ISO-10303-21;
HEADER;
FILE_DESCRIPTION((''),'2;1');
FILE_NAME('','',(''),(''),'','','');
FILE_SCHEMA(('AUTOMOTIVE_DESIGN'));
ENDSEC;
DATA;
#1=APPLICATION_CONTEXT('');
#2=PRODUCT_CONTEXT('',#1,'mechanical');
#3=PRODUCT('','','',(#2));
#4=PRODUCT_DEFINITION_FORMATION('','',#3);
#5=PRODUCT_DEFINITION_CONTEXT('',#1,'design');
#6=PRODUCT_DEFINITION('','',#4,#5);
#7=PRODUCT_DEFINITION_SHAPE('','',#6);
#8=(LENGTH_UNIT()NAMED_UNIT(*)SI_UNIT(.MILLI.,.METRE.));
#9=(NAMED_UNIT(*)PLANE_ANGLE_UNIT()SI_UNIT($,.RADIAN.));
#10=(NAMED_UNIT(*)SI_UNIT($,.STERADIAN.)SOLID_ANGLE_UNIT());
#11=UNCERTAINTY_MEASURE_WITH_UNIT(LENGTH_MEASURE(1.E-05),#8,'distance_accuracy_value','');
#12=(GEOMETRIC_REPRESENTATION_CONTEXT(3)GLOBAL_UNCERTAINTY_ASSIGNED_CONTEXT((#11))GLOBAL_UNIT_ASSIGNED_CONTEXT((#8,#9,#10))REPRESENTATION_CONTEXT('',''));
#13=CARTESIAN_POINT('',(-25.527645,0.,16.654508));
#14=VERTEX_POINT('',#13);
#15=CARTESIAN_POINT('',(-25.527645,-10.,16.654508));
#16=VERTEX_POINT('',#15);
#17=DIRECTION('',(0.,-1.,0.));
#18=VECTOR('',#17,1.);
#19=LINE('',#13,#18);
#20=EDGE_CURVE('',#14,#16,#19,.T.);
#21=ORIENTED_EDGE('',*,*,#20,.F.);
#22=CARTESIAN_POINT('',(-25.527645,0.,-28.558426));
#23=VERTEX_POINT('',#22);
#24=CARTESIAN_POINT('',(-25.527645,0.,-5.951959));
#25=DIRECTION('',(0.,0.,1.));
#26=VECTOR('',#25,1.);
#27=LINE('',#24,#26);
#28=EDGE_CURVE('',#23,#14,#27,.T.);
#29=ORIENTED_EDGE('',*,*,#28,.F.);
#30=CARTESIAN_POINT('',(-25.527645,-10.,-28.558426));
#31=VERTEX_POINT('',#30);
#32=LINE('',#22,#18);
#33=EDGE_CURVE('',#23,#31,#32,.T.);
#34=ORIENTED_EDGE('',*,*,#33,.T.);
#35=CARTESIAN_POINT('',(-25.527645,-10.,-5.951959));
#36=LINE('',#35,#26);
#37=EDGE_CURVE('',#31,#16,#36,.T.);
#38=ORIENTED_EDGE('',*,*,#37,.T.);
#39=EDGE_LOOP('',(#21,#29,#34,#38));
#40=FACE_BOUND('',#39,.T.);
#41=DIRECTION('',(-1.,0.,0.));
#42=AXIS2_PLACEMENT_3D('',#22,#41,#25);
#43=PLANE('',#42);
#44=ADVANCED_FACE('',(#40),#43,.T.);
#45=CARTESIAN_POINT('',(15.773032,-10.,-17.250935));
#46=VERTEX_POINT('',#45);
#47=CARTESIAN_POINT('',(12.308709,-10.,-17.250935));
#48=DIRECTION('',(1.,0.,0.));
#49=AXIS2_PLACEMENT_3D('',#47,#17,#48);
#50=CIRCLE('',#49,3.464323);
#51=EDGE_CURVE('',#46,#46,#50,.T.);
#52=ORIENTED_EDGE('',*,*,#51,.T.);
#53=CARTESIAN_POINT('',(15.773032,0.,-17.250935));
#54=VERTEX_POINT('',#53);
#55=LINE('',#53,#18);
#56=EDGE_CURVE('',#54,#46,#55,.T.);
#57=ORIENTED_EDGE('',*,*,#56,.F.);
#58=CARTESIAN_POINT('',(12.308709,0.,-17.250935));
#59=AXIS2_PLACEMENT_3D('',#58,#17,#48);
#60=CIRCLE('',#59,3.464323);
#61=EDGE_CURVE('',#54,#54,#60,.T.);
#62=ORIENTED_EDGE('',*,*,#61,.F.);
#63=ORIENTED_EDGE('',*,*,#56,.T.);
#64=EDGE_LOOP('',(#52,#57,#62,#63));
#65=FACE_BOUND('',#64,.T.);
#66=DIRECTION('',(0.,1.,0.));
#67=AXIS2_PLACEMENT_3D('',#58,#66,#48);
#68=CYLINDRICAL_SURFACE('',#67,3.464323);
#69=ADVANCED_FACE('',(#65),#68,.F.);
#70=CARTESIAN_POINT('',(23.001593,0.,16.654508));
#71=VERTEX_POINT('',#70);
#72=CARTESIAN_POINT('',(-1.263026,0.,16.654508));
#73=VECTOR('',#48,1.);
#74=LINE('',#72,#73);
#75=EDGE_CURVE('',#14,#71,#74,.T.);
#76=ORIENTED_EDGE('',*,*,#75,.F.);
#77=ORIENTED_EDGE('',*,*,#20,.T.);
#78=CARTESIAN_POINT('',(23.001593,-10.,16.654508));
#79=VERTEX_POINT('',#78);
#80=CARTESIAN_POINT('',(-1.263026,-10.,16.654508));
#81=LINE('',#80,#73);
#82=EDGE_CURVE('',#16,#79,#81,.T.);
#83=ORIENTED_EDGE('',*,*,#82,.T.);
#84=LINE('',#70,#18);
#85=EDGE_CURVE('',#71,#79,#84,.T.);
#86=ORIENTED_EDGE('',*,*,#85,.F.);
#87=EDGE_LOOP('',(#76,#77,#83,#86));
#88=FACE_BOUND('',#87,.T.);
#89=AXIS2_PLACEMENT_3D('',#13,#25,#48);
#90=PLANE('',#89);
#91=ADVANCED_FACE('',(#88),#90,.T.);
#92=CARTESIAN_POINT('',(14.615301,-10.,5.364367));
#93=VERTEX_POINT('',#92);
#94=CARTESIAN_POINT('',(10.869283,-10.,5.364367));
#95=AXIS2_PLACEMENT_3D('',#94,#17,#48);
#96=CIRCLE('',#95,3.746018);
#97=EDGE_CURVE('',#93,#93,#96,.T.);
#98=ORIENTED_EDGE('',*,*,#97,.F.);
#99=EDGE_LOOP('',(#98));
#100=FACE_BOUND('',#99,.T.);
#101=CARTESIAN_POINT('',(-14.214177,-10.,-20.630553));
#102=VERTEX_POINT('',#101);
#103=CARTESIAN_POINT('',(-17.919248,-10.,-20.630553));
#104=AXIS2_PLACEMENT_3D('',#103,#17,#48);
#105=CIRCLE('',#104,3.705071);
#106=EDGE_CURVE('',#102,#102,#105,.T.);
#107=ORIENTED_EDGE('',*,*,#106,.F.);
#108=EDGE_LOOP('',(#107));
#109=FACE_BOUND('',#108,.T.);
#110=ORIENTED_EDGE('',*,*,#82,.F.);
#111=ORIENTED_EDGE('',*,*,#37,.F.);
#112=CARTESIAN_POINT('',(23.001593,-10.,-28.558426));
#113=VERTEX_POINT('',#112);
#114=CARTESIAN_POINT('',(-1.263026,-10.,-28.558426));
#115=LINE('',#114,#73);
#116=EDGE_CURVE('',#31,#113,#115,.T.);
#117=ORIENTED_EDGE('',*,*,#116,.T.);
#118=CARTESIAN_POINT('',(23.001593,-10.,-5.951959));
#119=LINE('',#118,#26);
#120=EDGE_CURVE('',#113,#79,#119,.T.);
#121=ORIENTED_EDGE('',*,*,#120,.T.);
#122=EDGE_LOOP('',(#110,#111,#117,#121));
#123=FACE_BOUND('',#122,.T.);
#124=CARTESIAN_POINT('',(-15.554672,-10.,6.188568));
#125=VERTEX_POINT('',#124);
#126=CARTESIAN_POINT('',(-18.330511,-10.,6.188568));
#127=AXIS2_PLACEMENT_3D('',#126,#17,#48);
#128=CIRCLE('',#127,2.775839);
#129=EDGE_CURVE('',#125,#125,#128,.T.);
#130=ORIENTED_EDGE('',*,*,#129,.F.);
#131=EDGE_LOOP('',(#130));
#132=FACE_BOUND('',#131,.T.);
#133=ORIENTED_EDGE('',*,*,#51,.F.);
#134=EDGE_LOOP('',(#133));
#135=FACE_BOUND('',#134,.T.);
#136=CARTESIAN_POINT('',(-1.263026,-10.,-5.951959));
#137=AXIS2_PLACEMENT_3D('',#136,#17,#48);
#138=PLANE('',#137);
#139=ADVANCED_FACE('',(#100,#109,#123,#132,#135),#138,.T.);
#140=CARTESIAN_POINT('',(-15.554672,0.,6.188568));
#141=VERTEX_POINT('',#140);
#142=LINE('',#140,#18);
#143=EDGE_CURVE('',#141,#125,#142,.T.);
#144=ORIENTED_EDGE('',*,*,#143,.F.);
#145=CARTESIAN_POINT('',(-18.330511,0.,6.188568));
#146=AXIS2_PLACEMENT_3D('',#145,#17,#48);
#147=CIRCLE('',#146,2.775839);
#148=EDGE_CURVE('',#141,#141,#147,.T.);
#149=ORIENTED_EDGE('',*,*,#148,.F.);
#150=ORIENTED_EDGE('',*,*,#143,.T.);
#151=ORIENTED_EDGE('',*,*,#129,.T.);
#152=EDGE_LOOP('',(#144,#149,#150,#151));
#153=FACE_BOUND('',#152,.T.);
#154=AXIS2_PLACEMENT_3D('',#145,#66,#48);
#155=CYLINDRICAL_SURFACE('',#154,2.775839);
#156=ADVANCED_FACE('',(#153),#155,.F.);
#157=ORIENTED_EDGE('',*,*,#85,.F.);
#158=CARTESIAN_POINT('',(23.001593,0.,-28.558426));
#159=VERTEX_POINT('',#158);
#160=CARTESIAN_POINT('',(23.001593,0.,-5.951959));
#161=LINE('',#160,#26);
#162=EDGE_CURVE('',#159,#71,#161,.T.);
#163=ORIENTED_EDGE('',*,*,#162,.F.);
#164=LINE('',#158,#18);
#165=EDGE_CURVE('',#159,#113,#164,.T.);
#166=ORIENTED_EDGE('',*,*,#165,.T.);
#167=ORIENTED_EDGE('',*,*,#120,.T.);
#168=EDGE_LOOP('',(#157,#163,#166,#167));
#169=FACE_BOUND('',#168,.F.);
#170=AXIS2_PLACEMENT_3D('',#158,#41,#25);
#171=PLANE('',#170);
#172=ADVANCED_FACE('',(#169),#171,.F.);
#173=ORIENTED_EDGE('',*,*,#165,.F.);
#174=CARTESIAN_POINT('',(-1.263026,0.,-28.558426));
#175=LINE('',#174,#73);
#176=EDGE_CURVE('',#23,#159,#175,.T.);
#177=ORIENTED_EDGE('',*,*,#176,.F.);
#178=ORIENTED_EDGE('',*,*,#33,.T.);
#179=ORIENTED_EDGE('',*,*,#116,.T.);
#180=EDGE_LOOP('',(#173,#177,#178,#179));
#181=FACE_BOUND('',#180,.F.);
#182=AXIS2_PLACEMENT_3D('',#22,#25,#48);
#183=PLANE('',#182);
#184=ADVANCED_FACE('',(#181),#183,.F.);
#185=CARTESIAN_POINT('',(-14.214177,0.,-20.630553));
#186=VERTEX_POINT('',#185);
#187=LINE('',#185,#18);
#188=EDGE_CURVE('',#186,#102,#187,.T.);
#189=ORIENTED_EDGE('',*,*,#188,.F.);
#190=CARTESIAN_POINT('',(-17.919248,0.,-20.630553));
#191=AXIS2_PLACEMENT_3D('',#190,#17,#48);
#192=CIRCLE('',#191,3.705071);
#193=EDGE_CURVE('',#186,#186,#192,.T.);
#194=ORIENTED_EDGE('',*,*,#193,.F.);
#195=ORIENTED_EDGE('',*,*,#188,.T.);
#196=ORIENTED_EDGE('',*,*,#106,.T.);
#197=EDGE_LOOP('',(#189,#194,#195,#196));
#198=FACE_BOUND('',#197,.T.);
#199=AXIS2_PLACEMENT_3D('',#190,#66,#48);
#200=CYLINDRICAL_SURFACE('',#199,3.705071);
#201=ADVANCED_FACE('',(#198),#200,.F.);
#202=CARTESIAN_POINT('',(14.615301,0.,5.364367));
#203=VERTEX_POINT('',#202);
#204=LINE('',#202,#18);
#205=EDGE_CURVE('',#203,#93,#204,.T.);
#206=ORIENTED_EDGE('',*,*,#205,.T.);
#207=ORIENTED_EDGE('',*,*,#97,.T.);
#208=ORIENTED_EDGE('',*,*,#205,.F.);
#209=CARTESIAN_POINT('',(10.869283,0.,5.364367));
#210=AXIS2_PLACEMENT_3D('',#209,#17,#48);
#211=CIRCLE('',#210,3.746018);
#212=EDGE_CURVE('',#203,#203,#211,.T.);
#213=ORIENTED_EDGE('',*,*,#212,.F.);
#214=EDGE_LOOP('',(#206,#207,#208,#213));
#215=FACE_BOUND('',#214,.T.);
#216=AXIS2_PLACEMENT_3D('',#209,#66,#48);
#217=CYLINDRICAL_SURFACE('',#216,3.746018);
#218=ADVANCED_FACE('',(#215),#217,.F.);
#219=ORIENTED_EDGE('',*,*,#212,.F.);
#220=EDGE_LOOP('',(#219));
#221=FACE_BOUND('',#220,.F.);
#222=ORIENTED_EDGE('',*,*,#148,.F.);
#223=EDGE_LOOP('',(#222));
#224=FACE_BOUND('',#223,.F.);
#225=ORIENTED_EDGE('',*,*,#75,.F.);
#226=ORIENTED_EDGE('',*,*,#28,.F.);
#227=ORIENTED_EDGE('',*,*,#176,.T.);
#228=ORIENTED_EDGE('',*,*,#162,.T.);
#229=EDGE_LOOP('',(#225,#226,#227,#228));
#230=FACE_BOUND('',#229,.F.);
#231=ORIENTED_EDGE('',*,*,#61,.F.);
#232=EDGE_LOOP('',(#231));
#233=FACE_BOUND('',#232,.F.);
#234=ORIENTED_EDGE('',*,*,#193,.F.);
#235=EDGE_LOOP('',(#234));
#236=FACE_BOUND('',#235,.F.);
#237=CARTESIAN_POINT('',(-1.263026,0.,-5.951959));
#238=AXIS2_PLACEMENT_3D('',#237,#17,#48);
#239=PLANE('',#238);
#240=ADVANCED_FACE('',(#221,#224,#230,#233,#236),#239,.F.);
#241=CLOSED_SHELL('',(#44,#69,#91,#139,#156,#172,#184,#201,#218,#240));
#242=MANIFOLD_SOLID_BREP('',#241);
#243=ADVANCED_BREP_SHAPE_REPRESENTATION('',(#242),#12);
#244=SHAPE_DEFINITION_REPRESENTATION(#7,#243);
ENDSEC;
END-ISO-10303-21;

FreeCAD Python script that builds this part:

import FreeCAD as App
import Part
import Sketcher

V = App.Vector
Q = App.Units.Quantity


def add_polygon(sketch, points):
    """Adds a closed chain of lines whose ends are joined by coincident constraints."""
    first, n = sketch.GeometryCount, len(points)
    for a, b in zip(points, points[1:] + points[:1]):
        sketch.addGeometry(Part.LineSegment(App.Vector(*a, 0), App.Vector(*b, 0)), False)
    for i in range(n):
        sketch.addConstraint(Sketcher.Constraint("Coincident", first + i, 2, first + (i + 1) % n, 1))

doc = App.newDocument("Part")
params = doc.addObject("Spreadsheet::Sheet", "Params")
for row, (alias, value) in enumerate([
    ("pad1_length", "10 mm"),
], start=1):
    params.set(f"A{row}", alias)
    params.set(f"B{row}", "=" + value)
    params.setAlias(f"B{row}", alias)

body = doc.addObject("PartDesign::Body", "Body")

sketch1 = body.newObject("Sketcher::SketchObject", "Sketch")
sketch1.AttachmentSupport = (doc.getObject("XZ_Plane"), [""])
sketch1.MapMode = "FlatFace"
add_polygon(sketch1, [(-25.5, 16.7), (-25.5, -28.6), (23, -28.6), (23, 16.7)])
sketch1.addGeometry(Part.Circle(V(-17.9, -20.6, 0), V(0, 0, 1), 3.7), False)
sketch1.addGeometry(Part.Circle(V(12.3, -17.3, 0), V(0, 0, 1), 3.5), False)
sketch1.addGeometry(Part.Circle(V(-18.3, 6.2, 0), V(0, 0, 1), 2.8), False)
sketch1.addGeometry(Part.Circle(V(10.9, 5.4, 0), V(0, 0, 1), 3.7), False)
sketch1.addConstraint([
    Sketcher.Constraint("Vertical", 0),
    Sketcher.Constraint("Horizontal", 1),
    Sketcher.Constraint("Vertical", 2),
    Sketcher.Constraint("Horizontal", 3),
    Sketcher.Constraint("Diameter", 4, Q("7.410142 mm")),
    Sketcher.Constraint("Diameter", 5, Q("6.928646 mm")),
    Sketcher.Constraint("Diameter", 6, Q("5.551678 mm")),
    Sketcher.Constraint("Diameter", 7, Q("7.492036 mm")),
    Sketcher.Constraint("DistanceX", 1, 1, 1, 2, Q("48.529239 mm")),
    Sketcher.Constraint("DistanceY", 5, 3, 7, 3, Q("22.615302 mm")),
    Sketcher.Constraint("DistanceY", 7, 3, 6, 3, Q("0.824201 mm")),
    Sketcher.Constraint("DistanceY", 0, 2, 0, 1, Q("45.212935 mm")),
    Sketcher.Constraint("DistanceX", -1, 1, 5, 3, Q("12.308709 mm")),
    Sketcher.Constraint("DistanceX", 6, 3, -1, 1, Q("18.330511 mm")),
    Sketcher.Constraint("DistanceY", -1, 1, 2, 2, Q("16.654508 mm")),
    Sketcher.Constraint("DistanceY", 4, 3, 5, 3, Q("3.379618 mm")),
    Sketcher.Constraint("DistanceX", 4, 3, 7, 3, Q("28.788531 mm")),
    Sketcher.Constraint("DistanceY", 0, 2, 5, 3, Q("11.307492 mm")),
    Sketcher.Constraint("DistanceX", 0, 2, 7, 3, Q("36.396929 mm")),
    Sketcher.Constraint("DistanceX", 4, 3, -1, 1, Q("17.919248 mm")),
])
pad1 = body.newObject("PartDesign::Pad", "Pad")
pad1.Profile = sketch1
pad1.setExpression("Length", "Params.pad1_length")

doc.recompute()
